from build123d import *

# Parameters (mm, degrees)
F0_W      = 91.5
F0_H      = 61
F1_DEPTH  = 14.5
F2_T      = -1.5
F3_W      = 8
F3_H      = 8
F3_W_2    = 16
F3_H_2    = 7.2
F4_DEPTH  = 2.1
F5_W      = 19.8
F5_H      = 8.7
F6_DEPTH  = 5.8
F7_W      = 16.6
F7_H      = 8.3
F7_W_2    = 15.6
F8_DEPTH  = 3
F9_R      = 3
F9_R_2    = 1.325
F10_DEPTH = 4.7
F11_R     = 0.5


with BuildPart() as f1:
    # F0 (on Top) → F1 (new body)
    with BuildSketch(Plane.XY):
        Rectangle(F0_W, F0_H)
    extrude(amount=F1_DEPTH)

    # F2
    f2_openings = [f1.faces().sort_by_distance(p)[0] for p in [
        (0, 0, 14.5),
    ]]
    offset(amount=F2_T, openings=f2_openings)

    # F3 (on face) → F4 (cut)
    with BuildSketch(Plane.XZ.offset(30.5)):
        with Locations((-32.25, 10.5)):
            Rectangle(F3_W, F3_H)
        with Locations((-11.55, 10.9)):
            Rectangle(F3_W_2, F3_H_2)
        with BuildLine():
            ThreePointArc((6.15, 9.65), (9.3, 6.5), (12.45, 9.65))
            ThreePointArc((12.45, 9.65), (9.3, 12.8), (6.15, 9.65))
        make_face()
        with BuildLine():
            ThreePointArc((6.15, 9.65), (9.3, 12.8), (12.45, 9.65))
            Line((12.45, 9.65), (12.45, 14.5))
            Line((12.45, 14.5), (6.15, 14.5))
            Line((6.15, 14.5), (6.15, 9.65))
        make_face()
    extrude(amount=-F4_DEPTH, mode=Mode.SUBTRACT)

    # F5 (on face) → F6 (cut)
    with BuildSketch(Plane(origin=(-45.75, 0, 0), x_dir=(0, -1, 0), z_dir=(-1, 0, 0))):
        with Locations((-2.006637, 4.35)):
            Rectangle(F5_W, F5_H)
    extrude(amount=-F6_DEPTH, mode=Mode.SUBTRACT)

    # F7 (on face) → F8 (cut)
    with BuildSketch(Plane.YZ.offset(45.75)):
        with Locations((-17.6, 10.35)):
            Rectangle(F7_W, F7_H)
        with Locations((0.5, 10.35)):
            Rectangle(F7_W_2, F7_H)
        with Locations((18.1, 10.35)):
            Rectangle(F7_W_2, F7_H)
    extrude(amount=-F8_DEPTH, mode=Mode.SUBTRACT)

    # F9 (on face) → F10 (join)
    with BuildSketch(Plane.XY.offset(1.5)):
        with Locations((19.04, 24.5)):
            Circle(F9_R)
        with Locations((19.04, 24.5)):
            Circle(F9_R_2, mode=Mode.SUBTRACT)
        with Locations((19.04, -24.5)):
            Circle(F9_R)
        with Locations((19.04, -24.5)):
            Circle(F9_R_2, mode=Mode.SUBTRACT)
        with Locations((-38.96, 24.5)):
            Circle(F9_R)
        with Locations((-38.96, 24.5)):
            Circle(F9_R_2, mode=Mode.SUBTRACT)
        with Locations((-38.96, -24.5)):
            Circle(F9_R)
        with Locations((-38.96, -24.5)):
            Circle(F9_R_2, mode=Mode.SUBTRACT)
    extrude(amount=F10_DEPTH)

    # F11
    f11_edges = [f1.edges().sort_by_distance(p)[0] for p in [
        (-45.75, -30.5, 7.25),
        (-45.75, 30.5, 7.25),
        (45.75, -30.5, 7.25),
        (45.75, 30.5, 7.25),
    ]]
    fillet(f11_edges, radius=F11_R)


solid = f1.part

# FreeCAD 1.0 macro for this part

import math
import FreeCAD as App
import Part
import Sketcher


def edges_at(feature, points):
    """Names of the edges that pass closest to the given points."""
    edges = feature.Shape.Edges
    near = lambda p: min(range(len(edges)), key=lambda i: edges[i].distToShape(Part.Vertex(*p))[0])
    return sorted({f"Edge{near(p) + 1}" for p in points})


def faces_at(feature, points):
    """Names of the faces that lie closest to the given points."""
    faces = feature.Shape.Faces
    near = lambda p: min(range(len(faces)), key=lambda i: faces[i].distToShape(Part.Vertex(*p))[0])
    return sorted({f"Face{near(p) + 1}" for p in points})

doc = App.newDocument("Part")
body = doc.addObject("PartDesign::Body", "Body")

# Sketch on XY plane
sketch1 = body.newObject("Sketcher::SketchObject", "Sketch")
sketch1.AttachmentSupport = (doc.getObject("XY_Plane"), [""])
sketch1.MapMode = "FlatFace"
sketch1.addGeometry([
    Part.LineSegment(App.Vector(-45.75, 30.5, 0), App.Vector(-45.75, -30.5, 0)),
    Part.LineSegment(App.Vector(-45.75, -30.5, 0), App.Vector(45.75, -30.5, 0)),
    Part.LineSegment(App.Vector(45.75, -30.5, 0), App.Vector(45.75, 30.5, 0)),
    Part.LineSegment(App.Vector(45.75, 30.5, 0), App.Vector(-45.75, 30.5, 0)),
], False)
sketch1.addConstraint([
    Sketcher.Constraint("Coincident", 0, 2, 1, 1),
    Sketcher.Constraint("Coincident", 1, 2, 2, 1),
    Sketcher.Constraint("Coincident", 2, 2, 3, 1),
    Sketcher.Constraint("Coincident", 3, 2, 0, 1),
    Sketcher.Constraint("Vertical", 0),
    Sketcher.Constraint("Horizontal", 1),
    Sketcher.Constraint("Vertical", 2),
    Sketcher.Constraint("Horizontal", 3),
    Sketcher.Constraint("Symmetric", 0, 2, 2, 2, -1, 1),
    Sketcher.Constraint("DistanceY", 0, 2, 0, 1, 61.0),
    Sketcher.Constraint("DistanceX", 1, 1, 1, 2, 91.5),
])
pad1 = body.newObject("PartDesign::Pad", "Pad")
pad1.Profile = sketch1
pad1.Length = 14.5
doc.recompute()

thickness = body.newObject("PartDesign::Thickness", "Thickness")
thickness.Base = (pad1, faces_at(pad1, [(0, 0, 14.5)]))
thickness.Value = 1.5
thickness.Reversed = True
thickness.Join = "Arc"

# Sketch on XZ plane
sketch2 = body.newObject("Sketcher::SketchObject", "Sketch001")
sketch2.AttachmentSupport = (doc.getObject("XZ_Plane"), [""])
sketch2.MapMode = "FlatFace"
sketch2.AttachmentOffset = App.Placement(App.Vector(0, 0, 30.5), App.Rotation())
sketch2.addGeometry([
    Part.LineSegment(App.Vector(-36.25, 14.5, 0), App.Vector(-36.25, 6.5, 0)),  # 0
    Part.LineSegment(App.Vector(-36.25, 6.5, 0), App.Vector(-28.25, 6.5, 0)),  # 1
    Part.LineSegment(App.Vector(-28.25, 6.5, 0), App.Vector(-28.25, 14.5, 0)),  # 2
    Part.LineSegment(App.Vector(-28.25, 14.5, 0), App.Vector(-36.25, 14.5, 0)),  # 3
    Part.LineSegment(App.Vector(-19.55, 14.5, 0), App.Vector(-19.55, 7.3, 0)),  # 4
    Part.LineSegment(App.Vector(-19.55, 7.3, 0), App.Vector(-3.55, 7.3, 0)),  # 5
    Part.LineSegment(App.Vector(-3.55, 7.3, 0), App.Vector(-3.55, 14.5, 0)),  # 6
    Part.LineSegment(App.Vector(-3.55, 14.5, 0), App.Vector(-19.55, 14.5, 0)),  # 7
    Part.ArcOfCircle(Part.Circle(App.Vector(9.3, 9.65, 0), App.Vector(0, 0, 1), 3.15), math.radians(180), math.radians(360)),  # 8
    Part.LineSegment(App.Vector(12.45, 9.65, 0), App.Vector(12.45, 14.5, 0)),  # 9
    Part.LineSegment(App.Vector(12.45, 14.5, 0), App.Vector(6.15, 14.5, 0)),  # 10
    Part.LineSegment(App.Vector(6.15, 14.5, 0), App.Vector(6.15, 9.65, 0)),  # 11
], False)
sketch2.addConstraint([
    Sketcher.Constraint("Coincident", 0, 2, 1, 1),
    Sketcher.Constraint("Coincident", 1, 2, 2, 1),
    Sketcher.Constraint("Coincident", 2, 2, 3, 1),
    Sketcher.Constraint("Coincident", 3, 2, 0, 1),
    Sketcher.Constraint("Coincident", 4, 2, 5, 1),
    Sketcher.Constraint("Coincident", 5, 2, 6, 1),
    Sketcher.Constraint("Coincident", 6, 2, 7, 1),
    Sketcher.Constraint("Coincident", 7, 2, 4, 1),
    Sketcher.Constraint("Tangent", 8, 2, 9, 1),
    Sketcher.Constraint("Coincident", 9, 2, 10, 1),
    Sketcher.Constraint("Coincident", 10, 2, 11, 1),
    Sketcher.Constraint("Tangent", 11, 2, 8, 1),
    Sketcher.Constraint("Vertical", 0),
    Sketcher.Constraint("Horizontal", 1),
    Sketcher.Constraint("Vertical", 2),
    Sketcher.Constraint("Horizontal", 3),
    Sketcher.Constraint("Vertical", 4),
    Sketcher.Constraint("Horizontal", 5),
    Sketcher.Constraint("Vertical", 6),
    Sketcher.Constraint("Horizontal", 7),
    Sketcher.Constraint("Vertical", 9),
    Sketcher.Constraint("Horizontal", 10),
    Sketcher.Constraint("Vertical", 11),
    Sketcher.Constraint("Horizontal", 3, 2, 6, 2),
    Sketcher.Constraint("Horizontal", 7, 2, 9, 2),
    Sketcher.Constraint("Equal", 3, 0),
    Sketcher.Constraint("DistanceX", 1, 1, 1, 2, 8.0),
    Sketcher.Constraint("DistanceX", 5, 1, 5, 2, 16.0),
    Sketcher.Constraint("Radius", 8, 3.15),
    Sketcher.Constraint("DistanceY", 4, 2, 4, 1, 7.2),
    Sketcher.Constraint("DistanceX", 5, 2, 8, 2, 16.0),
    Sketcher.Constraint("DistanceY", 9, 1, 9, 2, 4.85),
    Sketcher.Constraint("DistanceX", -1, 1, 8, 3, 9.3),
    Sketcher.Constraint("DistanceY", -1, 1, 0, 2, 6.5),
    Sketcher.Constraint("DistanceX", 1, 2, 4, 2, 8.7),
])
pocket1 = body.newObject("PartDesign::Pocket", "Pocket")
pocket1.Profile = sketch2
pocket1.Length = 2.1

# Sketch on YZ plane
sketch3 = body.newObject("Sketcher::SketchObject", "Sketch002")
sketch3.AttachmentSupport = (doc.getObject("YZ_Plane"), [""])
sketch3.MapMode = "FlatFace"
sketch3.AttachmentOffset = App.Placement(App.Vector(0, 0, -45.75), App.Rotation())
sketch3.addGeometry([
    Part.LineSegment(App.Vector(11.906637, 8.7, 0), App.Vector(11.906637, 0, 0)),
    Part.LineSegment(App.Vector(11.906637, 0, 0), App.Vector(-7.893363, 0, 0)),
    Part.LineSegment(App.Vector(-7.893363, 0, 0), App.Vector(-7.893363, 8.7, 0)),
    Part.LineSegment(App.Vector(-7.893363, 8.7, 0), App.Vector(11.906637, 8.7, 0)),
], False)
sketch3.addConstraint([
    Sketcher.Constraint("Coincident", 0, 2, 1, 1),
    Sketcher.Constraint("Coincident", 1, 2, 2, 1),
    Sketcher.Constraint("Coincident", 2, 2, 3, 1),
    Sketcher.Constraint("Coincident", 3, 2, 0, 1),
    Sketcher.Constraint("Vertical", 0),
    Sketcher.Constraint("Horizontal", 1),
    Sketcher.Constraint("Vertical", 2),
    Sketcher.Constraint("Horizontal", 3),
    Sketcher.Constraint("PointOnObject", 0, 2, -1),
    Sketcher.Constraint("DistanceX", 1, 2, 1, 1, 19.8),
    Sketcher.Constraint("DistanceY", 0, 2, 0, 1, 8.7),
    Sketcher.Constraint("DistanceX", -1, 1, 0, 2, 11.906637),
])
pocket2 = body.newObject("PartDesign::Pocket", "Pocket001")
pocket2.Profile = sketch3
pocket2.Length = 5.8
pocket2.Reversed = True

# Sketch on YZ plane
sketch4 = body.newObject("Sketcher::SketchObject", "Sketch003")
sketch4.AttachmentSupport = (doc.getObject("YZ_Plane"), [""])
sketch4.MapMode = "FlatFace"
sketch4.AttachmentOffset = App.Placement(App.Vector(0, 0, 45.75), App.Rotation())
sketch4.addGeometry([
    Part.LineSegment(App.Vector(-25.9, 14.5, 0), App.Vector(-25.9, 6.2, 0)),  # 0
    Part.LineSegment(App.Vector(-25.9, 6.2, 0), App.Vector(-9.3, 6.2, 0)),  # 1
    Part.LineSegment(App.Vector(-9.3, 6.2, 0), App.Vector(-9.3, 14.5, 0)),  # 2
    Part.LineSegment(App.Vector(-9.3, 14.5, 0), App.Vector(-25.9, 14.5, 0)),  # 3
    Part.LineSegment(App.Vector(-7.3, 14.5, 0), App.Vector(-7.3, 6.2, 0)),  # 4
    Part.LineSegment(App.Vector(-7.3, 6.2, 0), App.Vector(8.3, 6.2, 0)),  # 5
    Part.LineSegment(App.Vector(8.3, 6.2, 0), App.Vector(8.3, 14.5, 0)),  # 6
    Part.LineSegment(App.Vector(8.3, 14.5, 0), App.Vector(-7.3, 14.5, 0)),  # 7
    Part.LineSegment(App.Vector(10.3, 14.5, 0), App.Vector(10.3, 6.2, 0)),  # 8
    Part.LineSegment(App.Vector(10.3, 6.2, 0), App.Vector(25.9, 6.2, 0)),  # 9
    Part.LineSegment(App.Vector(25.9, 6.2, 0), App.Vector(25.9, 14.5, 0)),  # 10
    Part.LineSegment(App.Vector(25.9, 14.5, 0), App.Vector(10.3, 14.5, 0)),  # 11
], False)
sketch4.addConstraint([
    Sketcher.Constraint("Coincident", 0, 2, 1, 1),
    Sketcher.Constraint("Coincident", 1, 2, 2, 1),
    Sketcher.Constraint("Coincident", 2, 2, 3, 1),
    Sketcher.Constraint("Coincident", 3, 2, 0, 1),
    Sketcher.Constraint("Coincident", 4, 2, 5, 1),
    Sketcher.Constraint("Coincident", 5, 2, 6, 1),
    Sketcher.Constraint("Coincident", 6, 2, 7, 1),
    Sketcher.Constraint("Coincident", 7, 2, 4, 1),
    Sketcher.Constraint("Coincident", 8, 2, 9, 1),
    Sketcher.Constraint("Coincident", 9, 2, 10, 1),
    Sketcher.Constraint("Coincident", 10, 2, 11, 1),
    Sketcher.Constraint("Coincident", 11, 2, 8, 1),
    Sketcher.Constraint("Vertical", 0),
    Sketcher.Constraint("Horizontal", 1),
    Sketcher.Constraint("Vertical", 2),
    Sketcher.Constraint("Horizontal", 3),
    Sketcher.Constraint("Vertical", 4),
    Sketcher.Constraint("Horizontal", 5),
    Sketcher.Constraint("Vertical", 6),
    Sketcher.Constraint("Horizontal", 7),
    Sketcher.Constraint("Vertical", 8),
    Sketcher.Constraint("Horizontal", 9),
    Sketcher.Constraint("Vertical", 10),
    Sketcher.Constraint("Horizontal", 11),
    Sketcher.Constraint("Symmetric", 0, 2, 9, 2, -2),
    Sketcher.Constraint("Horizontal", 1, 2, 4, 2),
    Sketcher.Constraint("Horizontal", 3, 2, 6, 2),
    Sketcher.Constraint("Horizontal", 7, 2, 10, 2),
    Sketcher.Constraint("Equal", 7, 9),
    Sketcher.Constraint("DistanceX", 1, 1, 1, 2, 16.6),
    Sketcher.Constraint("DistanceX", 5, 1, 5, 2, 15.6),
    Sketcher.Constraint("DistanceY", 0, 2, 0, 1, 8.3),
    Sketcher.Constraint("DistanceX", 1, 2, 4, 2, 2.0),
    Sketcher.Constraint("DistanceX", 5, 2, 8, 2, 2.0),
    Sketcher.Constraint("DistanceY", -1, 1, 0, 2, 6.2),
])
pocket3 = body.newObject("PartDesign::Pocket", "Pocket002")
pocket3.Profile = sketch4
pocket3.Length = 3

# Sketch on XY plane
sketch5 = body.newObject("Sketcher::SketchObject", "Sketch004")
sketch5.AttachmentSupport = (doc.getObject("XY_Plane"), [""])
sketch5.MapMode = "FlatFace"
sketch5.AttachmentOffset = App.Placement(App.Vector(0, 0, 1.5), App.Rotation())
sketch5.addGeometry([
    Part.Circle(App.Vector(19.04, 24.5, 0), App.Vector(0, 0, 1), 3),  # 0
    Part.Circle(App.Vector(19.04, 24.5, 0), App.Vector(0, 0, 1), 1.325),  # 1
    Part.Circle(App.Vector(19.04, -24.5, 0), App.Vector(0, 0, 1), 3),  # 2
    Part.Circle(App.Vector(19.04, -24.5, 0), App.Vector(0, 0, 1), 1.325),  # 3
    Part.Circle(App.Vector(-38.96, 24.5, 0), App.Vector(0, 0, 1), 3),  # 4
    Part.Circle(App.Vector(-38.96, 24.5, 0), App.Vector(0, 0, 1), 1.325),  # 5
    Part.Circle(App.Vector(-38.96, -24.5, 0), App.Vector(0, 0, 1), 3),  # 6
    Part.Circle(App.Vector(-38.96, -24.5, 0), App.Vector(0, 0, 1), 1.325),  # 7
], False)
sketch5.addConstraint([
    Sketcher.Constraint("Coincident", 1, 3, 0, 3),
    Sketcher.Constraint("Coincident", 3, 3, 2, 3),
    Sketcher.Constraint("Coincident", 5, 3, 4, 3),
    Sketcher.Constraint("Coincident", 7, 3, 6, 3),
    Sketcher.Constraint("Equal", 0, 2),
    Sketcher.Constraint("Equal", 1, 3),
    Sketcher.Constraint("Equal", 2, 4),
    Sketcher.Constraint("Equal", 3, 5),
    Sketcher.Constraint("Equal", 4, 6),
    Sketcher.Constraint("Equal", 5, 7),
    Sketcher.Constraint("Symmetric", 0, 3, 2, 3, -1),
    Sketcher.Constraint("Symmetric", 4, 3, 6, 3, -1),
    Sketcher.Constraint("Horizontal", 1, 3, 4, 3),
    Sketcher.Constraint("Diameter", 0, 6.0),
    Sketcher.Constraint("Diameter", 1, 2.65),
    Sketcher.Constraint("DistanceY", 2, 3, 0, 3, 49.0),
    Sketcher.Constraint("DistanceX", 4, 3, 0, 3, 58.0),
    Sketcher.Constraint("DistanceX", -1, 1, 0, 3, 19.04),
])
pad2 = body.newObject("PartDesign::Pad", "Pad001")
pad2.Profile = sketch5
pad2.Length = 4.7
doc.recompute()

fillet = body.newObject("PartDesign::Fillet", "Fillet")
fillet.Base = (pad2, edges_at(pad2, [
    (-45.75, -30.5, 7.25),
    (-45.75, 30.5, 7.25),
    (45.75, -30.5, 7.25),
    (45.75, 30.5, 7.25),
]))
fillet.Radius = 0.5

doc.recompute()
